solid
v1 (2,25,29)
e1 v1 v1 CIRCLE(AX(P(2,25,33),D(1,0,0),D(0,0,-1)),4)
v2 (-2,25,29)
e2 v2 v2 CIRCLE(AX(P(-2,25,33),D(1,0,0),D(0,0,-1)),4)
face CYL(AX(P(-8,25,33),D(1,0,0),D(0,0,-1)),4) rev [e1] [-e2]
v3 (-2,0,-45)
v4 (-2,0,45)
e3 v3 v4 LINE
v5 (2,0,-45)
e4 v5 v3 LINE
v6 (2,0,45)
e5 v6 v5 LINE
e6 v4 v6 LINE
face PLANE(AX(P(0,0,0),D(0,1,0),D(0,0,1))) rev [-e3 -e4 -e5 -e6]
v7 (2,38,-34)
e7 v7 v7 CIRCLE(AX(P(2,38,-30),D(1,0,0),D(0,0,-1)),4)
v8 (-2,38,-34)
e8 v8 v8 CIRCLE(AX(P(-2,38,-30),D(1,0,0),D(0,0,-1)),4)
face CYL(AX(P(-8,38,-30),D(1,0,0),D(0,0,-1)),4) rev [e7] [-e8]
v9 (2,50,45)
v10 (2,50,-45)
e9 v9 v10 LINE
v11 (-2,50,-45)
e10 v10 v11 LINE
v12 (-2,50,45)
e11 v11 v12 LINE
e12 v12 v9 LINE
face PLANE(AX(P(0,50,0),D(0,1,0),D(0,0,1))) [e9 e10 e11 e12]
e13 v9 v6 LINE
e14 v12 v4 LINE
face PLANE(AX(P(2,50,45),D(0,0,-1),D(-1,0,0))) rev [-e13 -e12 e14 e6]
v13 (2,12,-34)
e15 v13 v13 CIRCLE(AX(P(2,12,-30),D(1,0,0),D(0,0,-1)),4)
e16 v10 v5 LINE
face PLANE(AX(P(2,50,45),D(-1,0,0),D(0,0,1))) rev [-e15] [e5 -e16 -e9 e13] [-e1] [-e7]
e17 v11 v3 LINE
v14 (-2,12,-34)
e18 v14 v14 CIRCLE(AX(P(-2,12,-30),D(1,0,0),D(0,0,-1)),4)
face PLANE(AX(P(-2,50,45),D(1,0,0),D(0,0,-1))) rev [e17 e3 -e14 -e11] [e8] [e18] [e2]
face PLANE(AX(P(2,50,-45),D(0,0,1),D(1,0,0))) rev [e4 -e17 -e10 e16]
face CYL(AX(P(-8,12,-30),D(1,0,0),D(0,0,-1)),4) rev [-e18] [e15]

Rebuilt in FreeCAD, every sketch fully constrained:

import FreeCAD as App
import Part
import Sketcher

V = App.Vector


def add_polygon(sketch, points):
    """Adds a closed chain of lines whose ends are joined by coincident constraints."""
    first, n = sketch.GeometryCount, len(points)
    for a, b in zip(points, points[1:] + points[:1]):
        sketch.addGeometry(Part.LineSegment(App.Vector(*a, 0), App.Vector(*b, 0)), False)
    for i in range(n):
        sketch.addConstraint(Sketcher.Constraint("Coincident", first + i, 2, first + (i + 1) % n, 1))

doc = App.newDocument("Part")
body = doc.addObject("PartDesign::Body", "Body")

sketch1 = body.newObject("Sketcher::SketchObject", "Sketch")
sketch1.AttachmentSupport = (doc.getObject("XZ_Plane"), [""])
sketch1.MapMode = "FlatFace"
add_polygon(sketch1, [(-2, -45), (-2, 45), (2, 45), (2, -45)])
sketch1.addConstraint(Sketcher.Constraint("Vertical", 0))
sketch1.addConstraint(Sketcher.Constraint("Horizontal", 1))
sketch1.addConstraint(Sketcher.Constraint("Vertical", 2))
sketch1.addConstraint(Sketcher.Constraint("Horizontal", 3))
sketch1.addConstraint(Sketcher.Constraint("Symmetric", 0, 2, 2, 2, -1, 1))
sketch1.addConstraint(Sketcher.Constraint("DistanceX", 1, 1, 1, 2, 4.0))
sketch1.addConstraint(Sketcher.Constraint("DistanceY", 0, 1, 0, 2, 90.0))
pad1 = body.newObject("PartDesign::Pad", "Pad")
pad1.Profile = sketch1
pad1.Length = 50
pad1.Reversed = True

sketch2 = body.newObject("Sketcher::SketchObject", "Sketch001")
sketch2.AttachmentSupport = (doc.getObject("YZ_Plane"), [""])
sketch2.MapMode = "FlatFace"
sketch2.AttachmentOffset = App.Placement(V(0, 0, 2), App.Rotation())
sketch2.addGeometry(Part.Circle(V(25, 33, 0), V(0, 0, 1), 4), False)
sketch2.addGeometry(Part.Circle(V(38, -30, 0), V(0, 0, 1), 4), False)
sketch2.addGeometry(Part.Circle(V(12, -30, 0), V(0, 0, 1), 4), False)
sketch2.addConstraint(Sketcher.Constraint("Equal", 0, 1))
sketch2.addConstraint(Sketcher.Constraint("Equal", 1, 2))
sketch2.addConstraint(Sketcher.Constraint("Horizontal", 1, 3, 2, 3))
sketch2.addConstraint(Sketcher.Constraint("Diameter", 0, 8.0))
sketch2.addConstraint(Sketcher.Constraint("DistanceX", -1, 1, 0, 3, 25.0))
sketch2.addConstraint(Sketcher.Constraint("DistanceY", -1, 1, 0, 3, 33.0))
sketch2.addConstraint(Sketcher.Constraint("DistanceX", -1, 1, 1, 3, 38.0))
sketch2.addConstraint(Sketcher.Constraint("DistanceY", 1, 3, -1, 1, 30.0))
sketch2.addConstraint(Sketcher.Constraint("DistanceX", -1, 1, 2, 3, 12.0))
pocket1 = body.newObject("PartDesign::Pocket", "Pocket")
pocket1.Profile = sketch2
pocket1.Length = 10

doc.recompute()
